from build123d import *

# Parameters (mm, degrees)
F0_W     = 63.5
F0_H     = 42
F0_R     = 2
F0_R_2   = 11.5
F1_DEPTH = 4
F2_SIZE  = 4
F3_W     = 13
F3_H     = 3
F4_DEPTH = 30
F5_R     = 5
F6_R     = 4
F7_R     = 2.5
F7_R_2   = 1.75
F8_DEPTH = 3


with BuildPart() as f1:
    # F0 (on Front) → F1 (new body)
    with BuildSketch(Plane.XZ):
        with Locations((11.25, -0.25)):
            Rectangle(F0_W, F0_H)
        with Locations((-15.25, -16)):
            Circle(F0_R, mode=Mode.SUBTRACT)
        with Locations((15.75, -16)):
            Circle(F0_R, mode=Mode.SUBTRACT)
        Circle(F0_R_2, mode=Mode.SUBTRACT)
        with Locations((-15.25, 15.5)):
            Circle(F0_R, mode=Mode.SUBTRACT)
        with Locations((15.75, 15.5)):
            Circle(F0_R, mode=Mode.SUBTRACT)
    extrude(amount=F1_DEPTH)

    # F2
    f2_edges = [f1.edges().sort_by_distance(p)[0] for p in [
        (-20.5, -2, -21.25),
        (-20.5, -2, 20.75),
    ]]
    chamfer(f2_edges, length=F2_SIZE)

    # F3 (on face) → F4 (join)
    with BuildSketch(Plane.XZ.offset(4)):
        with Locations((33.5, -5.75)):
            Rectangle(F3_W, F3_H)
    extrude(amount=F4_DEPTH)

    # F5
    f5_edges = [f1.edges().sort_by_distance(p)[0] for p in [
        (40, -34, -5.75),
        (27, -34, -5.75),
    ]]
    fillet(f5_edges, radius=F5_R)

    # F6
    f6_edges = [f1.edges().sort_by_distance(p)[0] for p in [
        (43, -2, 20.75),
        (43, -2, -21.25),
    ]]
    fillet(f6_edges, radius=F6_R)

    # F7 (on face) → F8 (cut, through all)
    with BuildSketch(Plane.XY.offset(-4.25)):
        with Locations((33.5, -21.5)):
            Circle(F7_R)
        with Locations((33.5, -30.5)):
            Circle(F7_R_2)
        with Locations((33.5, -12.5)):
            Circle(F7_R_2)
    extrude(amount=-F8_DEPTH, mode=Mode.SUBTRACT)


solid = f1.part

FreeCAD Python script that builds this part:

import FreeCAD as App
import Part
import Sketcher
Q = App.Units.Quantity


def edges_at(feature, points):
    """Names of the edges that pass closest to the given points."""
    edges = feature.Shape.Edges
    near = lambda p: min(range(len(edges)), key=lambda i: edges[i].distToShape(Part.Vertex(*p))[0])
    return sorted({f"Edge{near(p) + 1}" for p in points})

doc = App.newDocument("Part")
params = doc.addObject("Spreadsheet::Sheet", "Params")
for row, (alias, value) in enumerate([
    ("sketch1_diameter", "4 mm"),
    ("sketch1_diameter2", "23 mm"),
    ("sketch1_height", "42 mm"),
    ("sketch1_width", "63.5 mm"),
    ("pad1_length", "4 mm"),
    ("chamfer_size", "4 mm"),
    ("sketch2_width", "13 mm"),
    ("sketch2_height", "3 mm"),
    ("pad2_length", "30 mm"),
    ("fillet_radius", "5 mm"),
    ("fillet2_radius", "4 mm"),
    ("sketch3_diameter", "5 mm"),
    ("sketch3_diameter2", "3.5 mm"),
], start=1):
    params.set(f"A{row}", alias)
    params.set(f"B{row}", "=" + value)
    params.setAlias(f"B{row}", alias)

body = doc.addObject("PartDesign::Body", "Body")

sketch1 = body.newObject("Sketcher::SketchObject", "Sketch")
sketch1.AttachmentSupport = (doc.getObject("XZ_Plane"), [""])
sketch1.MapMode = "FlatFace"
sketch1.addGeometry(Part.LineSegment(App.Vector(-20.5, 20.75, 0), App.Vector(-20.5, -21.25, 0)), False)
sketch1.addGeometry(Part.LineSegment(App.Vector(-20.5, -21.25, 0), App.Vector(43, -21.25, 0)), False)
sketch1.addGeometry(Part.LineSegment(App.Vector(43, -21.25, 0), App.Vector(43, 20.75, 0)), False)
sketch1.addGeometry(Part.LineSegment(App.Vector(43, 20.75, 0), App.Vector(-20.5, 20.75, 0)), False)
sketch1.addGeometry(Part.Circle(App.Vector(-15.25, -16, 0), App.Vector(0, 0, 1), 2), False)
sketch1.addGeometry(Part.Circle(App.Vector(15.75, -16, 0), App.Vector(0, 0, 1), 2), False)
sketch1.addGeometry(Part.Circle(App.Vector(0, 0, 0), App.Vector(0, 0, 1), 11.5), False)
sketch1.addGeometry(Part.Circle(App.Vector(-15.25, 15.5, 0), App.Vector(0, 0, 1), 2), False)
sketch1.addGeometry(Part.Circle(App.Vector(15.75, 15.5, 0), App.Vector(0, 0, 1), 2), False)
sketch1.addConstraint(Sketcher.Constraint("Coincident", 0, 2, 1, 1))
sketch1.addConstraint(Sketcher.Constraint("Coincident", 1, 2, 2, 1))
sketch1.addConstraint(Sketcher.Constraint("Coincident", 2, 2, 3, 1))
sketch1.addConstraint(Sketcher.Constraint("Coincident", 3, 2, 0, 1))
sketch1.addConstraint(Sketcher.Constraint("Vertical", 0))
sketch1.addConstraint(Sketcher.Constraint("Horizontal", 1))
sketch1.addConstraint(Sketcher.Constraint("Vertical", 2))
sketch1.addConstraint(Sketcher.Constraint("Horizontal", 3))
sketch1.addConstraint(Sketcher.Constraint("Coincident", 6, 3, -1, 1))
sketch1.addConstraint(Sketcher.Constraint("Equal", 4, 5))
sketch1.addConstraint(Sketcher.Constraint("Equal", 5, 7))
sketch1.addConstraint(Sketcher.Constraint("Equal", 7, 8))
sketch1.addConstraint(Sketcher.Constraint("Horizontal", 4, 3, 5, 3))
sketch1.addConstraint(Sketcher.Constraint("Horizontal", 7, 3, 8, 3))
sketch1.addConstraint(Sketcher.Constraint("Vertical", 4, 3, 7, 3))
sketch1.addConstraint(Sketcher.Constraint("Vertical", 5, 3, 8, 3))
sketch1.addConstraint(Sketcher.Constraint("Diameter", 4, Q("4 mm")))
sketch1.addConstraint(Sketcher.Constraint("Diameter", 6, Q("23 mm")))
sketch1.addConstraint(Sketcher.Constraint("DistanceY", 0, 2, 0, 1, Q("42 mm")))
sketch1.addConstraint(Sketcher.Constraint("DistanceX", 1, 1, 1, 2, Q("63.5 mm")))
sketch1.addConstraint(Sketcher.Constraint("DistanceY", 4, 3, -1, 1, Q("16 mm")))
sketch1.addConstraint(Sketcher.Constraint("DistanceX", -1, 1, 1, 2, Q("43 mm")))
sketch1.addConstraint(Sketcher.Constraint("DistanceX", 4, 3, 5, 3, Q("31 mm")))
sketch1.addConstraint(Sketcher.Constraint("DistanceY", -1, 1, 7, 3, Q("15.5 mm")))
sketch1.addConstraint(Sketcher.Constraint("DistanceX", 4, 3, -1, 1, Q("15.25 mm")))
sketch1.addConstraint(Sketcher.Constraint("DistanceY", 0, 2, -1, 1, Q("21.25 mm")))
sketch1.setExpression("Constraints[16]", "Params.sketch1_diameter")
sketch1.setExpression("Constraints[17]", "Params.sketch1_diameter2")
sketch1.setExpression("Constraints[18]", "Params.sketch1_height")
sketch1.setExpression("Constraints[19]", "Params.sketch1_width")
pad1 = body.newObject("PartDesign::Pad", "Pad")
pad1.Profile = sketch1
pad1.setExpression("Length", "Params.pad1_length")
doc.recompute()

chamfer = body.newObject("PartDesign::Chamfer", "Chamfer")
chamfer.Base = (pad1, edges_at(pad1, [(-20.5, -2, -21.25), (-20.5, -2, 20.75)]))
chamfer.setExpression("Size", "Params.chamfer_size")

sketch2 = body.newObject("Sketcher::SketchObject", "Sketch001")
sketch2.AttachmentSupport = (doc.getObject("XZ_Plane"), [""])
sketch2.MapMode = "FlatFace"
sketch2.AttachmentOffset = App.Placement(App.Vector(0, 0, 4), App.Rotation())
sketch2.addGeometry(Part.LineSegment(App.Vector(27, -4.25, 0), App.Vector(27, -7.25, 0)), False)
sketch2.addGeometry(Part.LineSegment(App.Vector(27, -7.25, 0), App.Vector(40, -7.25, 0)), False)
sketch2.addGeometry(Part.LineSegment(App.Vector(40, -7.25, 0), App.Vector(40, -4.25, 0)), False)
sketch2.addGeometry(Part.LineSegment(App.Vector(40, -4.25, 0), App.Vector(27, -4.25, 0)), False)
sketch2.addConstraint(Sketcher.Constraint("Coincident", 0, 2, 1, 1))
sketch2.addConstraint(Sketcher.Constraint("Coincident", 1, 2, 2, 1))
sketch2.addConstraint(Sketcher.Constraint("Coincident", 2, 2, 3, 1))
sketch2.addConstraint(Sketcher.Constraint("Coincident", 3, 2, 0, 1))
sketch2.addConstraint(Sketcher.Constraint("Vertical", 0))
sketch2.addConstraint(Sketcher.Constraint("Horizontal", 1))
sketch2.addConstraint(Sketcher.Constraint("Vertical", 2))
sketch2.addConstraint(Sketcher.Constraint("Horizontal", 3))
sketch2.addConstraint(Sketcher.Constraint("DistanceX", 1, 1, 1, 2, Q("13 mm")))
sketch2.addConstraint(Sketcher.Constraint("DistanceY", 0, 2, 0, 1, Q("3 mm")))
sketch2.addConstraint(Sketcher.Constraint("DistanceX", -1, 1, 0, 2, Q("27 mm")))
sketch2.addConstraint(Sketcher.Constraint("DistanceY", 0, 2, -1, 1, Q("7.25 mm")))
sketch2.setExpression("Constraints[8]", "Params.sketch2_width")
sketch2.setExpression("Constraints[9]", "Params.sketch2_height")
pad2 = body.newObject("PartDesign::Pad", "Pad001")
pad2.Profile = sketch2
pad2.setExpression("Length", "Params.pad2_length")
doc.recompute()

fillet = body.newObject("PartDesign::Fillet", "Fillet")
fillet.Base = (pad2, edges_at(pad2, [(40, -34, -5.75), (27, -34, -5.75)]))
fillet.setExpression("Radius", "Params.fillet_radius")
doc.recompute()

fillet2 = body.newObject("PartDesign::Fillet", "Fillet001")
fillet2.Base = (fillet, edges_at(fillet, [(43, -2, 20.75), (43, -2, -21.25)]))
fillet2.setExpression("Radius", "Params.fillet2_radius")

sketch3 = body.newObject("Sketcher::SketchObject", "Sketch002")
sketch3.AttachmentSupport = (doc.getObject("XY_Plane"), [""])
sketch3.MapMode = "FlatFace"
sketch3.AttachmentOffset = App.Placement(App.Vector(0, 0, -4.25), App.Rotation())
sketch3.addGeometry(Part.Circle(App.Vector(33.5, -21.5, 0), App.Vector(0, 0, 1), 2.5), False)
sketch3.addGeometry(Part.Circle(App.Vector(33.5, -30.5, 0), App.Vector(0, 0, 1), 1.75), False)
sketch3.addGeometry(Part.Circle(App.Vector(33.5, -12.5, 0), App.Vector(0, 0, 1), 1.75), False)
sketch3.addConstraint(Sketcher.Constraint("Equal", 1, 2))
sketch3.addConstraint(Sketcher.Constraint("Vertical", 0, 3, 1, 3))
sketch3.addConstraint(Sketcher.Constraint("Vertical", 1, 3, 2, 3))
sketch3.addConstraint(Sketcher.Constraint("Diameter", 0, Q("5 mm")))
sketch3.addConstraint(Sketcher.Constraint("Diameter", 1, Q("3.5 mm")))
sketch3.addConstraint(Sketcher.Constraint("DistanceY", 1, 3, 0, 3, Q("9 mm")))
sketch3.addConstraint(Sketcher.Constraint("DistanceY", 0, 3, 2, 3, Q("9 mm")))
sketch3.addConstraint(Sketcher.Constraint("DistanceX", -1, 1, 0, 3, Q("33.5 mm")))
sketch3.addConstraint(Sketcher.Constraint("DistanceY", 0, 3, -1, 1, Q("21.5 mm")))
sketch3.setExpression("Constraints[3]", "Params.sketch3_diameter")
sketch3.setExpression("Constraints[4]", "Params.sketch3_diameter2")
pocket1 = body.newObject("PartDesign::Pocket", "Pocket")
pocket1.Profile = sketch3
pocket1.Type = "ThroughAll"

doc.recompute()
